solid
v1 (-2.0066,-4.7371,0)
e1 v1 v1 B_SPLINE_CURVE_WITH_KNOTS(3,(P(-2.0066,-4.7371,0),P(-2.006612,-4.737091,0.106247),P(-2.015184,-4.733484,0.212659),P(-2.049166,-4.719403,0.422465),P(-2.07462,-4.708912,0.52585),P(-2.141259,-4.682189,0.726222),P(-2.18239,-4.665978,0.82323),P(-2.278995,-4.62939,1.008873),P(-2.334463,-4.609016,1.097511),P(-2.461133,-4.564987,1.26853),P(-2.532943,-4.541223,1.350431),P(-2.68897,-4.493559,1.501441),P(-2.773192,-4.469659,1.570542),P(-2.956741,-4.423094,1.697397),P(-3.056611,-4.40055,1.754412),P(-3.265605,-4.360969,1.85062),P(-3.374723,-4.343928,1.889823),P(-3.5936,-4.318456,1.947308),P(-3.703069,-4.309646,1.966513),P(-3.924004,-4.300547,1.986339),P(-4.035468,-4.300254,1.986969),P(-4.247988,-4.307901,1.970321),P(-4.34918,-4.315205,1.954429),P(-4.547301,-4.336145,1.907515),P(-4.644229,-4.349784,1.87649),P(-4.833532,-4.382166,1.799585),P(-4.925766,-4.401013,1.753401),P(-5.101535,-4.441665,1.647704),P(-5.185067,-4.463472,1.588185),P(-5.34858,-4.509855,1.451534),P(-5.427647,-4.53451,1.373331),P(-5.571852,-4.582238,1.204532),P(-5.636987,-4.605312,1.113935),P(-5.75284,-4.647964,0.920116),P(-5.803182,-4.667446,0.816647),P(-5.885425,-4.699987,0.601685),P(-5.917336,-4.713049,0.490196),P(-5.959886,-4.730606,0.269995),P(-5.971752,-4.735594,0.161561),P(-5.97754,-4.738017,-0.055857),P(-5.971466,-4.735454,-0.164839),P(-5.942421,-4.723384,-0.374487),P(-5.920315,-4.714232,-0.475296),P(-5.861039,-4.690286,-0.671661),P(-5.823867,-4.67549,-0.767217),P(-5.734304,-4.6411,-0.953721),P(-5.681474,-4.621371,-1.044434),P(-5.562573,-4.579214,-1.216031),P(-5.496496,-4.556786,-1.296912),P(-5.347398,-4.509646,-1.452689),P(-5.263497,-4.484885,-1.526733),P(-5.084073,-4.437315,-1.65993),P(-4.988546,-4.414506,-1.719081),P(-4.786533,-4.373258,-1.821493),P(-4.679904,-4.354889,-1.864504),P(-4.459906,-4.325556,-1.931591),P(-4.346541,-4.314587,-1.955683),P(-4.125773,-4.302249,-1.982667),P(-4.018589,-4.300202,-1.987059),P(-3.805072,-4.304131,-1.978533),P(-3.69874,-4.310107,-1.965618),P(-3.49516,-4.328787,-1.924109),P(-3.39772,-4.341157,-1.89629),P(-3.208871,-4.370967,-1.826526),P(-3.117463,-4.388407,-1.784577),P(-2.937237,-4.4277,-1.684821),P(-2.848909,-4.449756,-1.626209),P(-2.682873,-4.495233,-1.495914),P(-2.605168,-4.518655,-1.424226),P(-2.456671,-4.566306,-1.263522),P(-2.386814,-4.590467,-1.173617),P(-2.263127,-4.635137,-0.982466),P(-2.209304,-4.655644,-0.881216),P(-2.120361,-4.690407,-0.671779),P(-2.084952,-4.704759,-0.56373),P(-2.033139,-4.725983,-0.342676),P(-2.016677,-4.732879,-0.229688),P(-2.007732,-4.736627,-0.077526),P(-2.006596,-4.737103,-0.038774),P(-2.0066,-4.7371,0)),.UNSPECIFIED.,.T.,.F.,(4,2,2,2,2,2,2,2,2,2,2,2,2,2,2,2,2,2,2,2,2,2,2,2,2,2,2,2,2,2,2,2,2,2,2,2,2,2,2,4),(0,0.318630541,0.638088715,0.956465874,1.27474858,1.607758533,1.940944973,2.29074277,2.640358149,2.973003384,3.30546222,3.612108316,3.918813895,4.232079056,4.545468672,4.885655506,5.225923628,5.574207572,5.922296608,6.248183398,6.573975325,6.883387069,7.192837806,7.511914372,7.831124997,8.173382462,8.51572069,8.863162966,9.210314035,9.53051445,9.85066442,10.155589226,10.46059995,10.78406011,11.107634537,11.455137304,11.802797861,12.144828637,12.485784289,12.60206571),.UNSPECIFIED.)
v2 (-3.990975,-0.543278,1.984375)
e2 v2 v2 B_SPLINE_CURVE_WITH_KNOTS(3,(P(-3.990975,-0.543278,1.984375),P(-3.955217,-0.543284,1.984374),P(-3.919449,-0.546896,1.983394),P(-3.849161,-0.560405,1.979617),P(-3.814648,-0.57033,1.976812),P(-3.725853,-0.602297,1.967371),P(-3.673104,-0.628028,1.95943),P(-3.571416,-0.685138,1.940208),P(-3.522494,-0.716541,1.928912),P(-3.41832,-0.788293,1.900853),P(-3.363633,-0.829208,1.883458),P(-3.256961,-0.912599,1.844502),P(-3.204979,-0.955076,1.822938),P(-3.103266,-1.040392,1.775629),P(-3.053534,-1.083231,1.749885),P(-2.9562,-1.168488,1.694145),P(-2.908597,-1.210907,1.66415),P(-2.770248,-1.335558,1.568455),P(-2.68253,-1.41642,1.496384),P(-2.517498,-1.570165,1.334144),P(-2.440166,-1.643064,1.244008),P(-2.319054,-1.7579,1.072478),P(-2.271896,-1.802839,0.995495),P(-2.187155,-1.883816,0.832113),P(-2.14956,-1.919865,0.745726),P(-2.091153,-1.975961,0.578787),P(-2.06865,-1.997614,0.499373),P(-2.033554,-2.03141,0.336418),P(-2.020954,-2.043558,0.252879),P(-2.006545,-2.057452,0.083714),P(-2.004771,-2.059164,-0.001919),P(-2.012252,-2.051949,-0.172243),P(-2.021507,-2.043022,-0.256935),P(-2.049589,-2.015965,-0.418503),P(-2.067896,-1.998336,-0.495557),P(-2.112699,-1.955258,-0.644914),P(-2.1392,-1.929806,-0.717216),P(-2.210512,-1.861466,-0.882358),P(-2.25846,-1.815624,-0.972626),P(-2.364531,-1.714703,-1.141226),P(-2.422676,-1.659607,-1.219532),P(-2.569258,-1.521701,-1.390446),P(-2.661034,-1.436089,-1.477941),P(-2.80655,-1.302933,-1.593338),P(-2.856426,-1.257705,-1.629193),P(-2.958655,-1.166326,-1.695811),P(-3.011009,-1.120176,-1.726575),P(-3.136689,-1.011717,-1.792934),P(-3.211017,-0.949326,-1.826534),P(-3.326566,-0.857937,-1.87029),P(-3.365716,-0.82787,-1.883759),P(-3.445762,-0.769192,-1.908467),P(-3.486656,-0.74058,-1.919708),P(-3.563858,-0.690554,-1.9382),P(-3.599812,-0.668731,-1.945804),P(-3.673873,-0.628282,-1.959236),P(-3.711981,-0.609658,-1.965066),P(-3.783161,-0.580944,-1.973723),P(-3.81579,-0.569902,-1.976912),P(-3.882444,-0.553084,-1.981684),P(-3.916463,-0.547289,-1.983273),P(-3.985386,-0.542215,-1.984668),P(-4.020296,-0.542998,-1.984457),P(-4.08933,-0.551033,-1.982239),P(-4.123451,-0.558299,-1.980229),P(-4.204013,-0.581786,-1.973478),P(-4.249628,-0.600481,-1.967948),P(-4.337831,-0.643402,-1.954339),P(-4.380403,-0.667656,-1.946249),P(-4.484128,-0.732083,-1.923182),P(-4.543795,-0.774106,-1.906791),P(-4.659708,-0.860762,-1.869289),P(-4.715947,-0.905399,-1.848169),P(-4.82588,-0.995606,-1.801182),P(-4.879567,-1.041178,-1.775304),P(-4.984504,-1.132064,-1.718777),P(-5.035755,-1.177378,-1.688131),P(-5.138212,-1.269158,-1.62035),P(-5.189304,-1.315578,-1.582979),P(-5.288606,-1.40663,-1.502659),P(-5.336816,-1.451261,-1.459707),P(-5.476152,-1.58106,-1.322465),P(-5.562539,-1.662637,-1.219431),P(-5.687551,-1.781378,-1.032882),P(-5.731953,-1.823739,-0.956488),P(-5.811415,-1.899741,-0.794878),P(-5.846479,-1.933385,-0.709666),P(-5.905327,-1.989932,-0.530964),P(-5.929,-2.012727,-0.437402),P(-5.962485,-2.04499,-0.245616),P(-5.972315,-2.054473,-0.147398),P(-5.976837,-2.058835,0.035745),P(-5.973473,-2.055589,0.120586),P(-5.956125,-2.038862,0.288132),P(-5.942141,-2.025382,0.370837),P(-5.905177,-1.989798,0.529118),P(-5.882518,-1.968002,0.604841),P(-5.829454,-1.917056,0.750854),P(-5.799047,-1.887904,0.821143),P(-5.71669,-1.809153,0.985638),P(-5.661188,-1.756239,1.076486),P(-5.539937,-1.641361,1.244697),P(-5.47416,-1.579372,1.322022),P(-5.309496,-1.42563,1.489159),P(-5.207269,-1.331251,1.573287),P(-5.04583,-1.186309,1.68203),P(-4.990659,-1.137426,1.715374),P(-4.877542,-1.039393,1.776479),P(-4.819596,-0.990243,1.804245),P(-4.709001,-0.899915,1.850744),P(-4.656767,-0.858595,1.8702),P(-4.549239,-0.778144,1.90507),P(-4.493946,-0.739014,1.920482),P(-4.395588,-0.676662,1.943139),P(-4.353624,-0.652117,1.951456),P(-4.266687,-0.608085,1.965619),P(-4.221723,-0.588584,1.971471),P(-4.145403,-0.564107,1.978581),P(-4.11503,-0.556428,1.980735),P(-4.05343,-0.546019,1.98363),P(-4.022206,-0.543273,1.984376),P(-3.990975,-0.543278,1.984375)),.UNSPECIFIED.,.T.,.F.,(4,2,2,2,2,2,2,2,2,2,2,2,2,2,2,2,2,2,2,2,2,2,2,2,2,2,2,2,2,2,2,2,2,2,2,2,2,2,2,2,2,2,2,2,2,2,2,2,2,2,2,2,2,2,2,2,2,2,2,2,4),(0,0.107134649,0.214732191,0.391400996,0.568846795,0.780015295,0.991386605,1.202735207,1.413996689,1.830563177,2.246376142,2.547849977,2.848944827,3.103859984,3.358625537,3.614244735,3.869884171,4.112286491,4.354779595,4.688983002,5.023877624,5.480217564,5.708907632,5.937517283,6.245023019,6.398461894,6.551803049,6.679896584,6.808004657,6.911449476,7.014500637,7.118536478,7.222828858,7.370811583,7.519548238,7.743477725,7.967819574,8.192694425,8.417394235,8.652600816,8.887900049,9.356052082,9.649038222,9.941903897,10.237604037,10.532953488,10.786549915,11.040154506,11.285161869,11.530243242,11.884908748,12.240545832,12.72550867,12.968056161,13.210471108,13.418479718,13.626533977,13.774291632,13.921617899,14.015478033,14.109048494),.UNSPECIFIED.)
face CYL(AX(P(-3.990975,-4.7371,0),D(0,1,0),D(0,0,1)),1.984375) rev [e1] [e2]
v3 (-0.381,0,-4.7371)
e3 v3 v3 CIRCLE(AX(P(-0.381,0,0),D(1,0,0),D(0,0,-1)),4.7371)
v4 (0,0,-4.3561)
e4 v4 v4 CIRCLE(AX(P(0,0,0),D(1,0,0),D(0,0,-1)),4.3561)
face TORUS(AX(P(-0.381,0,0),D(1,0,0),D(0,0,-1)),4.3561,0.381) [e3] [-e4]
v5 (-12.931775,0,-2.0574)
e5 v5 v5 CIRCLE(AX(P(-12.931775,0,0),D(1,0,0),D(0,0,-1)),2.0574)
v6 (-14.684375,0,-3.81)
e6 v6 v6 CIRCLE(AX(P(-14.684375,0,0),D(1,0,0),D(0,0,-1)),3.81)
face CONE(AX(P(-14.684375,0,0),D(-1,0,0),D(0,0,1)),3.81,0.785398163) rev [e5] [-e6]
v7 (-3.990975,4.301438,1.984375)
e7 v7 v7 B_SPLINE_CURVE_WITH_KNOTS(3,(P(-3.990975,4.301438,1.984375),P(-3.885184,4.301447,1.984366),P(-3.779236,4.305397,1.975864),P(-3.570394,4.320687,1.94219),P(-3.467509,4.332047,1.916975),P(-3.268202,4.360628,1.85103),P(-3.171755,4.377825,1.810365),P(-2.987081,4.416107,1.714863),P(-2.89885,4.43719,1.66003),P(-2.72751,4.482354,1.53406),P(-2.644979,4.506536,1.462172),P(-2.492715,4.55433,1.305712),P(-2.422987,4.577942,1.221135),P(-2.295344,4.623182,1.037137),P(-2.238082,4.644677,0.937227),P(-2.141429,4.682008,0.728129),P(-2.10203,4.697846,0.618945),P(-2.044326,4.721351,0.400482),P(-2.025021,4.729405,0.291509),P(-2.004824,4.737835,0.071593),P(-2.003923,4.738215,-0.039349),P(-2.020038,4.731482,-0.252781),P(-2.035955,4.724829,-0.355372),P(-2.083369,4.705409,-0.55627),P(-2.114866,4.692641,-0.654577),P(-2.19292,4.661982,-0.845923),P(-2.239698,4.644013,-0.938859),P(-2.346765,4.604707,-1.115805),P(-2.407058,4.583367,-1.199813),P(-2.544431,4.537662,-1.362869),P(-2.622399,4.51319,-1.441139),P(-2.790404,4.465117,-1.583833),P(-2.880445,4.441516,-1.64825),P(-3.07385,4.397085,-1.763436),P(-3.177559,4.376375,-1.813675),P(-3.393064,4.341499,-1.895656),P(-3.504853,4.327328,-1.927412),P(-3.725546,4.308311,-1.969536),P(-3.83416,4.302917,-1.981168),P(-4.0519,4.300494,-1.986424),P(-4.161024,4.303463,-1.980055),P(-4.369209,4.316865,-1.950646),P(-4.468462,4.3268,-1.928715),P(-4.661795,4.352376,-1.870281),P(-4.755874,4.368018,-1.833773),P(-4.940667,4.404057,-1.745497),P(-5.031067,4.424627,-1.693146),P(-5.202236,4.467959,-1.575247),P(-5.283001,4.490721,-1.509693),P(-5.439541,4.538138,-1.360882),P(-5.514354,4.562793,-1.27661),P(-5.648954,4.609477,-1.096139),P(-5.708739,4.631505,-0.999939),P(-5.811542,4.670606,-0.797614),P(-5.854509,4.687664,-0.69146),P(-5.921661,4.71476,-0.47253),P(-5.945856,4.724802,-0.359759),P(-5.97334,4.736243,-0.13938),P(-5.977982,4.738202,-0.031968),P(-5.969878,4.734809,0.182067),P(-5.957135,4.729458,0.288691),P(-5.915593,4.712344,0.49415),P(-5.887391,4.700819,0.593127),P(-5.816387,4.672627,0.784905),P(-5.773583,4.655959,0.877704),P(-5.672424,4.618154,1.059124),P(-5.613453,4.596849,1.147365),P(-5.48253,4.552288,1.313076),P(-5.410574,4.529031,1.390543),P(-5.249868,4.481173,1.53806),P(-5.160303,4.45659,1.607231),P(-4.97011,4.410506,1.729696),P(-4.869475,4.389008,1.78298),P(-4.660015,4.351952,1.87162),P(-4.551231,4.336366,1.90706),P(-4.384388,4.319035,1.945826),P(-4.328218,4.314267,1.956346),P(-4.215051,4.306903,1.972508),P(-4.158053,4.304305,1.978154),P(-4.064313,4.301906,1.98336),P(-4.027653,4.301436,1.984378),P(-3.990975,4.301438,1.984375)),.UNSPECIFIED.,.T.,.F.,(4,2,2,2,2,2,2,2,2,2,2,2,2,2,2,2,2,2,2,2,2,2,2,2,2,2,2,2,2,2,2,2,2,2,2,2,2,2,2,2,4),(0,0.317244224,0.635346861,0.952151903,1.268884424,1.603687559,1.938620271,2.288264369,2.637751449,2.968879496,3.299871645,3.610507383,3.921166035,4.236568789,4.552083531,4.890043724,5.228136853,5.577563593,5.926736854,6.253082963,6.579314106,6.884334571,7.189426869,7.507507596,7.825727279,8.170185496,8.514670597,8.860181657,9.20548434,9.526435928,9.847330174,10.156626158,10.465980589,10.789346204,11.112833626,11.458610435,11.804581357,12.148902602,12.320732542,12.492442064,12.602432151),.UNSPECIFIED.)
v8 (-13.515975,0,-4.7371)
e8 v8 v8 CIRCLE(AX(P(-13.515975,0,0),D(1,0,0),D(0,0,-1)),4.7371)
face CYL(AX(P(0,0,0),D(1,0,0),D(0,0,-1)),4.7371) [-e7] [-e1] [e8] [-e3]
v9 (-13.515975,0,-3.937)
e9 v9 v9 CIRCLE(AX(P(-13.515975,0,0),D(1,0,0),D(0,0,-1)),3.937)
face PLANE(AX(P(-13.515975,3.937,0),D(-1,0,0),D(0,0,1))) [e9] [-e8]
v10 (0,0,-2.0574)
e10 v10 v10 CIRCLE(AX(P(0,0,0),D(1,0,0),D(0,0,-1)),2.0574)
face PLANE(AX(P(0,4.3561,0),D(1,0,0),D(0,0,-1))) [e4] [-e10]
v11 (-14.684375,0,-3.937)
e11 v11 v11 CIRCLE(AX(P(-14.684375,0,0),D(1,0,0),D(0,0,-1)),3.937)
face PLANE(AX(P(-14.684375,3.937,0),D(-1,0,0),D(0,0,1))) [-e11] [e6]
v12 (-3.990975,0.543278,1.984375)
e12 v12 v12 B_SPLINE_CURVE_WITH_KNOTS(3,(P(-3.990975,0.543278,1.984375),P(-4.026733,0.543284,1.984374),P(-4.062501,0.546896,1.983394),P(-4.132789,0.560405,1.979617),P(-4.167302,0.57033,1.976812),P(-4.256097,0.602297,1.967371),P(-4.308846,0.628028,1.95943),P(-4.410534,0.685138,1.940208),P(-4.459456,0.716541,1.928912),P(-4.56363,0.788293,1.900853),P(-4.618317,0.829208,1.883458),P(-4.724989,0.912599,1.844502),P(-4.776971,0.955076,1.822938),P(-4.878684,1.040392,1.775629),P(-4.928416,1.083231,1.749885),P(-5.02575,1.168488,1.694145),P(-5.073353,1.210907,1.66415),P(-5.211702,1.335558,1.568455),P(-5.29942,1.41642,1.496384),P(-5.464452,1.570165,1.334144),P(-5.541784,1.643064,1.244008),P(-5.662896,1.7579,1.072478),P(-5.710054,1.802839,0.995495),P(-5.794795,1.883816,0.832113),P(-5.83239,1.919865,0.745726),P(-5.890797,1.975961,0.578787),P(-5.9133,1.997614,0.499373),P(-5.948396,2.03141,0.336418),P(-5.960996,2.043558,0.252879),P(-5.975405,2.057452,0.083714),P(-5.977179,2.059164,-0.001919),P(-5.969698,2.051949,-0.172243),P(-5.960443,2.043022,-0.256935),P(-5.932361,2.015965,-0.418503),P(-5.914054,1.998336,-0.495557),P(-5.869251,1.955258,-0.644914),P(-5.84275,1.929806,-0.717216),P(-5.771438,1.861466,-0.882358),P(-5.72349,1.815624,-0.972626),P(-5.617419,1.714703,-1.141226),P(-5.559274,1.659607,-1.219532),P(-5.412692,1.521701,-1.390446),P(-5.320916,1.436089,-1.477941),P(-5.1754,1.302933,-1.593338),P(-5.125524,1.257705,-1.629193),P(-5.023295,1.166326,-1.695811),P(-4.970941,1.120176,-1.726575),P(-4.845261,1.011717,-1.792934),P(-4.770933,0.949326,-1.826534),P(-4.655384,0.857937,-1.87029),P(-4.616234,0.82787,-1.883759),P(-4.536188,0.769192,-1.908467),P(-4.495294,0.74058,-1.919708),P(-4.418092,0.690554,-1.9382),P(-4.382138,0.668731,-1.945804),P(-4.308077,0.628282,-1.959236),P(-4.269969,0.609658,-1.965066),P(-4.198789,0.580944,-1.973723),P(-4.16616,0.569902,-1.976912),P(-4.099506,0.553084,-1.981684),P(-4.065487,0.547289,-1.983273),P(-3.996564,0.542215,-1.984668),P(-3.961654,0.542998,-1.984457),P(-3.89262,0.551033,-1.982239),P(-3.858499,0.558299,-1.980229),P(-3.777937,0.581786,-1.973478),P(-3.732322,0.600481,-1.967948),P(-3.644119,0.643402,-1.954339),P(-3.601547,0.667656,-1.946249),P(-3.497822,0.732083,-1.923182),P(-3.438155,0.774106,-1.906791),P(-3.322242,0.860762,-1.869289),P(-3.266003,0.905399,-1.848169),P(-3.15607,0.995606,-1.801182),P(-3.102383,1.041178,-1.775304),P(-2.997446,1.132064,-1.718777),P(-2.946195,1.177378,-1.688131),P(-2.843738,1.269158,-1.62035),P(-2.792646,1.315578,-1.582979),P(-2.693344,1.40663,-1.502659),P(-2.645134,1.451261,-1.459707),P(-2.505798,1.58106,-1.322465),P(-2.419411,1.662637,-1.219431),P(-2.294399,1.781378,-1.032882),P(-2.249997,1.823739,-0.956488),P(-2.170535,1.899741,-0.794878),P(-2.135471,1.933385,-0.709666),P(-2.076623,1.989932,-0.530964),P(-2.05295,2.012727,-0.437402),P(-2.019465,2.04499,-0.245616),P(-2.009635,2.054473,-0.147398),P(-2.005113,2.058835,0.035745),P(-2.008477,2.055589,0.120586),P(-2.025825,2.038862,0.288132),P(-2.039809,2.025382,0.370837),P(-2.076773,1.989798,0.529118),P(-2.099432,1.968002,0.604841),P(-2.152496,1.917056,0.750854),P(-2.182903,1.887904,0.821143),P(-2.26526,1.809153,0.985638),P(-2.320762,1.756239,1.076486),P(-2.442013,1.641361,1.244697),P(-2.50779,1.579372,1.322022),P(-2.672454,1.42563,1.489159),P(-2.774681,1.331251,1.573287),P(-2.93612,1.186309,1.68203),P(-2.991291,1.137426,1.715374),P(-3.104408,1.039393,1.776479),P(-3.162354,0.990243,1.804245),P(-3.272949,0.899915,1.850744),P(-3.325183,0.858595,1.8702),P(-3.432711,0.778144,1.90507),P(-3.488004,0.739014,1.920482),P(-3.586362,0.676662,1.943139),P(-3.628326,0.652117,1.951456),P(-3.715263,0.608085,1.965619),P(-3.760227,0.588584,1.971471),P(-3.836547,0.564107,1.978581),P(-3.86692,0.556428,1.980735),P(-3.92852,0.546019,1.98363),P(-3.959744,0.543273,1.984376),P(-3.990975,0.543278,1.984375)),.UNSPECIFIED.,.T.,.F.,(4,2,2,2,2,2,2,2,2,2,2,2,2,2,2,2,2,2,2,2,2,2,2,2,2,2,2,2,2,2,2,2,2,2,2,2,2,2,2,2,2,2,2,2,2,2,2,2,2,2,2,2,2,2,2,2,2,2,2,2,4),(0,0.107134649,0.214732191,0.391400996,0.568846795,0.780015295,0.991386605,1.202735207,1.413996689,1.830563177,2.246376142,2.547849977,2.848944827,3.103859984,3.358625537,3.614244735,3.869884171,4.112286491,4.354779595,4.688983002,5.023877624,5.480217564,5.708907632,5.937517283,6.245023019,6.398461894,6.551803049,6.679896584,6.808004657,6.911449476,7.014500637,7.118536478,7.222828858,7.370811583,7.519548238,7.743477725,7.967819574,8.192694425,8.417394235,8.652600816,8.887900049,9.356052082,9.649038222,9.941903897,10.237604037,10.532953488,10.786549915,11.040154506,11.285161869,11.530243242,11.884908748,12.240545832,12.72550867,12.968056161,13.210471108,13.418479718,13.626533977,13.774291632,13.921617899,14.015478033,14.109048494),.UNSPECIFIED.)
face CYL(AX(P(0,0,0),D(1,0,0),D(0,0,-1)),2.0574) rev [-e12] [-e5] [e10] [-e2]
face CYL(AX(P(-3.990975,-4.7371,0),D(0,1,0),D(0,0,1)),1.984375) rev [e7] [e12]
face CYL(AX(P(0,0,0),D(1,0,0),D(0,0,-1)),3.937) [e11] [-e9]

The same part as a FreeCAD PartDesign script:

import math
import FreeCAD as App
import Part
import Sketcher
from FreeCAD import Vector
Q = App.Units.Quantity

doc = App.newDocument("Part")
body = doc.addObject("PartDesign::Body", "Body")

# Sketch on XY plane
sketch1 = body.newObject("Sketcher::SketchObject", "Sketch")
sketch1.AttachmentSupport = (doc.getObject("XY_Plane"), [""])
sketch1.MapMode = "FlatFace"
sketch1.addGeometry([
    Part.LineSegment(Vector(-12.93, 2.06, 0), Vector(0, 2.06, 0)),  # 0
    Part.LineSegment(Vector(0, 2.06, 0), Vector(0, 4.36, 0)),  # 1
    Part.ArcOfCircle(Part.Circle(Vector(-0.38, 4.36, 0), Vector(0, 0, 1), 0.38), math.radians(0), math.radians(90)),  # 2
    Part.LineSegment(Vector(-0.38, 4.74, 0), Vector(-13.52, 4.74, 0)),  # 3
    Part.LineSegment(Vector(-13.52, 4.74, 0), Vector(-13.52, 3.94, 0)),  # 4
    Part.LineSegment(Vector(-13.52, 3.94, 0), Vector(-14.68, 3.94, 0)),  # 5
    Part.LineSegment(Vector(-14.68, 3.94, 0), Vector(-14.68, 3.81, 0)),  # 6
    Part.LineSegment(Vector(-14.68, 3.81, 0), Vector(-12.93, 2.06, 0)),  # 7
], False)
sketch1.addConstraint([
    Sketcher.Constraint("Coincident", 0, 2, 1, 1),
    Sketcher.Constraint("Tangent", 1, 2, 2, 1),
    Sketcher.Constraint("Tangent", 2, 2, 3, 1),
    Sketcher.Constraint("Coincident", 3, 2, 4, 1),
    Sketcher.Constraint("Coincident", 4, 2, 5, 1),
    Sketcher.Constraint("Coincident", 5, 2, 6, 1),
    Sketcher.Constraint("Coincident", 6, 2, 7, 1),
    Sketcher.Constraint("Coincident", 7, 2, 0, 1),
    Sketcher.Constraint("Horizontal", 0),
    Sketcher.Constraint("Vertical", 1),
    Sketcher.Constraint("Horizontal", 3),
    Sketcher.Constraint("Vertical", 4),
    Sketcher.Constraint("Horizontal", 5),
    Sketcher.Constraint("Vertical", 6),
    Sketcher.Constraint("PointOnObject", 0, 2, -2),
    Sketcher.Constraint("Angle", 7, Q("-45 deg")),
    Sketcher.Constraint("Radius", 2, Q("0.015 in")),
    Sketcher.Constraint("DistanceX", 5, 2, 5, 1, Q("0.046 in")),
    Sketcher.Constraint("DistanceY", 6, 2, 6, 1, Q("0.005 in")),
    Sketcher.Constraint("DistanceY", -1, 1, 6, 2, Q("0.15 in")),
    Sketcher.Constraint("DistanceY", 1, 1, 1, 2, Q("0.0905 in")),
    Sketcher.Constraint("DistanceY", 4, 2, 4, 1, Q("0.0315 in")),
    Sketcher.Constraint("DistanceX", 5, 2, -1, 1, Q("0.578125 in")),
])
revolution = body.newObject("PartDesign::Revolution", "Revolution")
revolution.Profile = sketch1
revolution.ReferenceAxis = (sketch1, ["H_Axis"])
revolution.Angle = 360

# Sketch on XZ plane
sketch2 = body.newObject("Sketcher::SketchObject", "Sketch001")
sketch2.AttachmentSupport = (doc.getObject("XZ_Plane"), [""])
sketch2.MapMode = "FlatFace"
sketch2.addGeometry(Part.Circle(Vector(-4, 0, 0), Vector(0, 0, 1), 2), False)
sketch2.addConstraint([
    Sketcher.Constraint("PointOnObject", 0, 3, -1),
    Sketcher.Constraint("Diameter", 0, Q("0.15625 in")),
    Sketcher.Constraint("DistanceX", 0, 3, -1, 1, Q("3.990975 mm")),
])
pocket1 = body.newObject("PartDesign::Pocket", "Pocket")
pocket1.Profile = sketch2
pocket1.Type = "ThroughAll"
pocket1.Midplane = True

doc.recompute()
